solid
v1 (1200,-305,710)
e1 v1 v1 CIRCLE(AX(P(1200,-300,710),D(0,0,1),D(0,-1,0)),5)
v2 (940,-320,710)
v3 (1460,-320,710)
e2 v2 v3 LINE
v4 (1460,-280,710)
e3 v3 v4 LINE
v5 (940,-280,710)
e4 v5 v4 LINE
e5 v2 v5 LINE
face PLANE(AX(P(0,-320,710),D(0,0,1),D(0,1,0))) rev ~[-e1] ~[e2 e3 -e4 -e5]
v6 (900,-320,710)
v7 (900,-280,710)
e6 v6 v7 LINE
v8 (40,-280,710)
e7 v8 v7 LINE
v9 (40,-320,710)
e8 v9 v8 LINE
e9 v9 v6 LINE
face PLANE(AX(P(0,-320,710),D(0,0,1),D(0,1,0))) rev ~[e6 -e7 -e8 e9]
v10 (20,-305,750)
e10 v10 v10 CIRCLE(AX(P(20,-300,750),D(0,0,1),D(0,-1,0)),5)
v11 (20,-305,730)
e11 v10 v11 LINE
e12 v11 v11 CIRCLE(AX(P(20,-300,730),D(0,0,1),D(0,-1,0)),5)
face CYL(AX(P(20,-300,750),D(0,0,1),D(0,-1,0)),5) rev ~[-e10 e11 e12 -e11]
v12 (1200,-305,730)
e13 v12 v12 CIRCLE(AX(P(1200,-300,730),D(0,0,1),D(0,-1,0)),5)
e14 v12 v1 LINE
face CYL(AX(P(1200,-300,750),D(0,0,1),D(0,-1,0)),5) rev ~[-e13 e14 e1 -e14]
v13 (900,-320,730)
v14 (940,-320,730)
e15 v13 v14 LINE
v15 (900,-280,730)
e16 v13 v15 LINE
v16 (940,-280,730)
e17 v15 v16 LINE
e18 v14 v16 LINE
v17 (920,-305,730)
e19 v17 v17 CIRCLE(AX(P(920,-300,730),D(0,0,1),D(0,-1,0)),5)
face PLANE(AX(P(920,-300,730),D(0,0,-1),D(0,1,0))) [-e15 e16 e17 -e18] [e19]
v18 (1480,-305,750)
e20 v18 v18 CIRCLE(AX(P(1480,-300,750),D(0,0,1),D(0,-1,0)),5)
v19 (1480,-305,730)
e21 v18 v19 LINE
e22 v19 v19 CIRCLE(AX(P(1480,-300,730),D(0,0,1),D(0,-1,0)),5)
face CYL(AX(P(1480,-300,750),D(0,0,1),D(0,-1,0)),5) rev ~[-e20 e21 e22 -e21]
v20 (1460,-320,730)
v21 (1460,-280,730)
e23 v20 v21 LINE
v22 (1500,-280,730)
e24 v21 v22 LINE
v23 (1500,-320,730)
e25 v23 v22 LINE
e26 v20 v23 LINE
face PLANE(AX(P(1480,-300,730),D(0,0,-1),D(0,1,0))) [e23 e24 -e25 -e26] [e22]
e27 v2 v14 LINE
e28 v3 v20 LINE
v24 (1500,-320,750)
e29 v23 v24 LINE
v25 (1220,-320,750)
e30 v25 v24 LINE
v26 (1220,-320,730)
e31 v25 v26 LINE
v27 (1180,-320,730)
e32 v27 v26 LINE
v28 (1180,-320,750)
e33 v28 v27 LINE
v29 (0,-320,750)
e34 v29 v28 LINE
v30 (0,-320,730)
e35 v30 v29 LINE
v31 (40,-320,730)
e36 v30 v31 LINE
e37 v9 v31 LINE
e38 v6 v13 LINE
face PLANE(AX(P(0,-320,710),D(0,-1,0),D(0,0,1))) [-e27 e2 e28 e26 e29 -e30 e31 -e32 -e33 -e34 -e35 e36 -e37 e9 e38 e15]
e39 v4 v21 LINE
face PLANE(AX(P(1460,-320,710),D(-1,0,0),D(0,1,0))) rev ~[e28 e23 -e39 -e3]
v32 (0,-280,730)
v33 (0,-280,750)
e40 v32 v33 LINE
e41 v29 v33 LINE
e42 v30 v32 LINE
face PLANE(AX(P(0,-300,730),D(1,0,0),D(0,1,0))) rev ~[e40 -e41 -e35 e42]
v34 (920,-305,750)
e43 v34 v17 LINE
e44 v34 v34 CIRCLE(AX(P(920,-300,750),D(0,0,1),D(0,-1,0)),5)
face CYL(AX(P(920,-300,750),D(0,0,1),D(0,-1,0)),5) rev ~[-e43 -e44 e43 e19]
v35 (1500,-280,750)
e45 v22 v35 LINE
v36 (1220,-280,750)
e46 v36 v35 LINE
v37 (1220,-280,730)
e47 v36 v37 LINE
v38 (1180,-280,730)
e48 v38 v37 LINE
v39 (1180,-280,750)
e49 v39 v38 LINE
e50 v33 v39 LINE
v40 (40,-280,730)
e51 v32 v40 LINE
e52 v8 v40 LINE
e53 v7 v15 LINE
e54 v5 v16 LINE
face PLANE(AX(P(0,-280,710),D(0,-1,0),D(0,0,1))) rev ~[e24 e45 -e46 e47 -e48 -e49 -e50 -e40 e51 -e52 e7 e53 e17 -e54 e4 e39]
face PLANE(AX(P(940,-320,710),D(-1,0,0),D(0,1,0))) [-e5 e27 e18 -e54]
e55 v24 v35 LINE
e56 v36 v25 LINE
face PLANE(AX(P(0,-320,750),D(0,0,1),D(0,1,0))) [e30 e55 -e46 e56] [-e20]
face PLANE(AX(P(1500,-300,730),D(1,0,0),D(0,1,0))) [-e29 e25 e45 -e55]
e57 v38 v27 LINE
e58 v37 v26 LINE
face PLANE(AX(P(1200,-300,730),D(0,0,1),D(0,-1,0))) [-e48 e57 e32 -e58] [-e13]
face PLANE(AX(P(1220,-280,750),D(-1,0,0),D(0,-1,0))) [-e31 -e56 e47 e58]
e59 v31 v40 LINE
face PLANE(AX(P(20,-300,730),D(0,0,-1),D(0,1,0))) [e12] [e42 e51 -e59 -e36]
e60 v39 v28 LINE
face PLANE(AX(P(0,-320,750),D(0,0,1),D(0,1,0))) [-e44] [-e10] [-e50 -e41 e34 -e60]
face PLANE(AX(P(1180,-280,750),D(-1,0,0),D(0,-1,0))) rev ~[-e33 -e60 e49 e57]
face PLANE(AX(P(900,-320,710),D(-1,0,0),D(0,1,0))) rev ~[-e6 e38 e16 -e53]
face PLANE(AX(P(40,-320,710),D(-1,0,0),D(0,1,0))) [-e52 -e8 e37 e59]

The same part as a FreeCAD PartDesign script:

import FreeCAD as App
import Part
import Sketcher

doc = App.newDocument("Part")
body = doc.addObject("PartDesign::Body", "Body")

# Sketch on YZ plane
sketch1 = body.newObject("Sketcher::SketchObject", "Sketch")
sketch1.AttachmentSupport = (doc.getObject("YZ_Plane"), [""])
sketch1.MapMode = "FlatFace"
sketch1.addGeometry([
    Part.LineSegment(App.Vector(-320, 300, 0), App.Vector(-320, 260, 0)),
    Part.LineSegment(App.Vector(-320, 260, 0), App.Vector(-280, 260, 0)),
    Part.LineSegment(App.Vector(-280, 260, 0), App.Vector(-280, 300, 0)),
    Part.LineSegment(App.Vector(-280, 300, 0), App.Vector(-320, 300, 0)),
], False)
sketch1.addConstraint([
    Sketcher.Constraint("Coincident", 0, 2, 1, 1),
    Sketcher.Constraint("Coincident", 1, 2, 2, 1),
    Sketcher.Constraint("Coincident", 2, 2, 3, 1),
    Sketcher.Constraint("Coincident", 3, 2, 0, 1),
    Sketcher.Constraint("Vertical", 0),
    Sketcher.Constraint("Horizontal", 1),
    Sketcher.Constraint("Vertical", 2),
    Sketcher.Constraint("Horizontal", 3),
    Sketcher.Constraint("Equal", 3, 0),
    Sketcher.Constraint("DistanceX", 1, 1, 1, 2, 40.0),
    Sketcher.Constraint("DistanceX", 0, 2, -1, 1, 320.0),
    Sketcher.Constraint("DistanceY", -1, 1, 0, 2, 260.0),
])
pad1 = body.newObject("PartDesign::Pad", "Pad")
pad1.Profile = sketch1
pad1.Length = 1500

# Sketch on XY plane
sketch2 = body.newObject("Sketcher::SketchObject", "Sketch001")
sketch2.AttachmentSupport = (doc.getObject("XY_Plane"), [""])
sketch2.MapMode = "FlatFace"
sketch2.AttachmentOffset = App.Placement(App.Vector(0, 0, 260), App.Rotation())
sketch2.addGeometry([
    Part.LineSegment(App.Vector(1500, -320, 0), App.Vector(1460, -320, 0)),  # 0
    Part.LineSegment(App.Vector(1460, -320, 0), App.Vector(1460, -280, 0)),  # 1
    Part.LineSegment(App.Vector(1460, -280, 0), App.Vector(1500, -280, 0)),  # 2
    Part.LineSegment(App.Vector(1500, -280, 0), App.Vector(1500, -320, 0)),  # 3
    Part.LineSegment(App.Vector(940, -320, 0), App.Vector(900, -320, 0)),  # 4
    Part.LineSegment(App.Vector(900, -320, 0), App.Vector(900, -280, 0)),  # 5
    Part.LineSegment(App.Vector(900, -280, 0), App.Vector(940, -280, 0)),  # 6
    Part.LineSegment(App.Vector(940, -280, 0), App.Vector(940, -320, 0)),  # 7
    Part.LineSegment(App.Vector(40, -320, 0), App.Vector(0, -320, 0)),  # 8
    Part.LineSegment(App.Vector(0, -320, 0), App.Vector(0, -280, 0)),  # 9
    Part.LineSegment(App.Vector(0, -280, 0), App.Vector(40, -280, 0)),  # 10
    Part.LineSegment(App.Vector(40, -280, 0), App.Vector(40, -320, 0)),  # 11
], False)
sketch2.addConstraint([
    Sketcher.Constraint("Coincident", 0, 2, 1, 1),
    Sketcher.Constraint("Coincident", 1, 2, 2, 1),
    Sketcher.Constraint("Coincident", 2, 2, 3, 1),
    Sketcher.Constraint("Coincident", 3, 2, 0, 1),
    Sketcher.Constraint("Coincident", 4, 2, 5, 1),
    Sketcher.Constraint("Coincident", 5, 2, 6, 1),
    Sketcher.Constraint("Coincident", 6, 2, 7, 1),
    Sketcher.Constraint("Coincident", 7, 2, 4, 1),
    Sketcher.Constraint("Coincident", 8, 2, 9, 1),
    Sketcher.Constraint("Coincident", 9, 2, 10, 1),
    Sketcher.Constraint("Coincident", 10, 2, 11, 1),
    Sketcher.Constraint("Coincident", 11, 2, 8, 1),
    Sketcher.Constraint("Horizontal", 0),
    Sketcher.Constraint("Vertical", 1),
    Sketcher.Constraint("Horizontal", 2),
    Sketcher.Constraint("Vertical", 3),
    Sketcher.Constraint("Horizontal", 4),
    Sketcher.Constraint("Vertical", 5),
    Sketcher.Constraint("Horizontal", 6),
    Sketcher.Constraint("Vertical", 7),
    Sketcher.Constraint("Horizontal", 8),
    Sketcher.Constraint("Vertical", 9),
    Sketcher.Constraint("Horizontal", 10),
    Sketcher.Constraint("Vertical", 11),
    Sketcher.Constraint("PointOnObject", 8, 2, -2),
    Sketcher.Constraint("Horizontal", 3, 2, 4, 2),
    Sketcher.Constraint("Horizontal", 2, 2, 5, 2),
    Sketcher.Constraint("Horizontal", 7, 2, 8, 2),
    Sketcher.Constraint("Horizontal", 6, 2, 9, 2),
    Sketcher.Constraint("Equal", 2, 4),
    Sketcher.Constraint("Equal", 6, 8),
    Sketcher.Constraint("Equal", 10, 1),
    Sketcher.Constraint("DistanceX", 0, 2, 0, 1, 40.0),
    Sketcher.Constraint("DistanceX", -1, 1, 0, 2, 1460.0),
    Sketcher.Constraint("DistanceY", 0, 2, -1, 1, 320.0),
    Sketcher.Constraint("DistanceX", -1, 1, 4, 2, 900.0),
])
pocket1 = body.newObject("PartDesign::Pocket", "Pocket")
pocket1.Profile = sketch2
pocket1.Length = 20
pocket1.Reversed = True

# Sketch on XY plane
sketch3 = body.newObject("Sketcher::SketchObject", "Sketch002")
sketch3.AttachmentSupport = (doc.getObject("XY_Plane"), [""])
sketch3.MapMode = "FlatFace"
sketch3.AttachmentOffset = App.Placement(App.Vector(0, 0, 300), App.Rotation())
sketch3.addGeometry([
    Part.LineSegment(App.Vector(1220, -280, 0), App.Vector(1180, -280, 0)),
    Part.LineSegment(App.Vector(1180, -280, 0), App.Vector(1180, -320, 0)),
    Part.LineSegment(App.Vector(1180, -320, 0), App.Vector(1220, -320, 0)),
    Part.LineSegment(App.Vector(1220, -320, 0), App.Vector(1220, -280, 0)),
], False)
sketch3.addConstraint([
    Sketcher.Constraint("Coincident", 0, 2, 1, 1),
    Sketcher.Constraint("Coincident", 1, 2, 2, 1),
    Sketcher.Constraint("Coincident", 2, 2, 3, 1),
    Sketcher.Constraint("Coincident", 3, 2, 0, 1),
    Sketcher.Constraint("Horizontal", 0),
    Sketcher.Constraint("Vertical", 1),
    Sketcher.Constraint("Horizontal", 2),
    Sketcher.Constraint("Vertical", 3),
    Sketcher.Constraint("Equal", 2, 1),
    Sketcher.Constraint("DistanceX", 0, 2, 0, 1, 40.0),
    Sketcher.Constraint("DistanceX", -1, 1, 0, 2, 1180.0),
    Sketcher.Constraint("DistanceY", 0, 2, -1, 1, 280.0),
])
pocket2 = body.newObject("PartDesign::Pocket", "Pocket001")
pocket2.Profile = sketch3
pocket2.Length = 20

# Sketch on XY plane
sketch4 = body.newObject("Sketcher::SketchObject", "Sketch003")
sketch4.AttachmentSupport = (doc.getObject("XY_Plane"), [""])
sketch4.MapMode = "FlatFace"
sketch4.AttachmentOffset = App.Placement(App.Vector(0, 0, 300), App.Rotation())
sketch4.addGeometry([
    Part.Circle(App.Vector(20, -300, 0), App.Vector(0, 0, 1), 5),
    Part.Circle(App.Vector(920, -300, 0), App.Vector(0, 0, 1), 5),
    Part.Circle(App.Vector(1480, -300, 0), App.Vector(0, 0, 1), 5),
    Part.Circle(App.Vector(1200, -300, 0), App.Vector(0, 0, 1), 5),
], False)
sketch4.addConstraint([
    Sketcher.Constraint("Equal", 0, 1),
    Sketcher.Constraint("Equal", 1, 2),
    Sketcher.Constraint("Equal", 2, 3),
    Sketcher.Constraint("Horizontal", 0, 3, 1, 3),
    Sketcher.Constraint("Horizontal", 1, 3, 2, 3),
    Sketcher.Constraint("Horizontal", 2, 3, 3, 3),
    Sketcher.Constraint("Diameter", 0, 10.0),
    Sketcher.Constraint("DistanceX", -1, 1, 0, 3, 20.0),
    Sketcher.Constraint("DistanceY", 0, 3, -1, 1, 300.0),
    Sketcher.Constraint("DistanceX", -1, 1, 1, 3, 920.0),
    Sketcher.Constraint("DistanceX", -1, 1, 2, 3, 1480.0),
    Sketcher.Constraint("DistanceX", -1, 1, 3, 3, 1200.0),
])
pocket3 = body.newObject("PartDesign::Pocket", "Pocket002")
pocket3.Profile = sketch4
pocket3.Type = "ThroughAll"
body2 = doc.addObject("PartDesign::Body", "Body001")
doc.recompute()

body.Placement = App.Placement(App.Vector(0, 0, 450), App.Rotation(App.Vector(0, 0, 1), 0))
boolean = body2.newObject("PartDesign::Boolean", "Boolean")
boolean.Type = "Fuse"
boolean.addObjects([body])

doc.recompute()
